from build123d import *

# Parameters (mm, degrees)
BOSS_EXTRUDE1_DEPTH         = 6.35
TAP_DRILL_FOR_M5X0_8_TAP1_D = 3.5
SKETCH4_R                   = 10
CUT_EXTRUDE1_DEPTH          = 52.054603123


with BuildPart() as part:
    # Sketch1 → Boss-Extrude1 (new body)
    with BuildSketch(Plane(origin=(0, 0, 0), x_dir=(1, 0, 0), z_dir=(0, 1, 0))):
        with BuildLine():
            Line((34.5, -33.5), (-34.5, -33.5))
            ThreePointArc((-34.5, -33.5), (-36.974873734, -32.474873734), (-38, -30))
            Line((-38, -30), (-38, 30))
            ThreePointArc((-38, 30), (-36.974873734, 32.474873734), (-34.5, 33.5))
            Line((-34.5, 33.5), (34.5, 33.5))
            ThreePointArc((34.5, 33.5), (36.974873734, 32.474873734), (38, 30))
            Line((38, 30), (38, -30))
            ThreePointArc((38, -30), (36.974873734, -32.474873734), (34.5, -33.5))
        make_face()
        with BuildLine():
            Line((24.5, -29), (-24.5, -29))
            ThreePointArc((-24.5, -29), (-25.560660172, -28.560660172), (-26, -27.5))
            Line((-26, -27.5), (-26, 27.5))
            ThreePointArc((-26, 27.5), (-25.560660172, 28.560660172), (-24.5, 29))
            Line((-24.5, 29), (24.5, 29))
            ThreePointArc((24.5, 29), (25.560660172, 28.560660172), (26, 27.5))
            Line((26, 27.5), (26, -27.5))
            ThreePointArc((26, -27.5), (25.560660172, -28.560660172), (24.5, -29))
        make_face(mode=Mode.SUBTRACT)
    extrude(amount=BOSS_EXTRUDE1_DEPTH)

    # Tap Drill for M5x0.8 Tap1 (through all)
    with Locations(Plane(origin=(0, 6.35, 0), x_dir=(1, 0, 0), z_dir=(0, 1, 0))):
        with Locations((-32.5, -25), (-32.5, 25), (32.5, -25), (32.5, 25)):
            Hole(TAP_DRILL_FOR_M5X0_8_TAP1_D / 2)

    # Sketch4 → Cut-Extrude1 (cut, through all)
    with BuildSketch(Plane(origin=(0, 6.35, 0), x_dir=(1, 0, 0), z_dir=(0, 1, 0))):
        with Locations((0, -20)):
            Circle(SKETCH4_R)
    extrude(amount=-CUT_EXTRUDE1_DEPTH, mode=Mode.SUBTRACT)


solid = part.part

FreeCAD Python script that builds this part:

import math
import FreeCAD as App
import Part
import Sketcher
Q = App.Units.Quantity

doc = App.newDocument("Part")
body = doc.addObject("PartDesign::Body", "Body")

sketch1 = body.newObject("Sketcher::SketchObject", "Sketch")
sketch1.AttachmentSupport = (doc.getObject("XZ_Plane"), [""])
sketch1.MapMode = "FlatFace"
sketch1.addGeometry([
    Part.LineSegment(App.Vector(-34.5, 33.5, 0), App.Vector(34.5, 33.5, 0)),
    Part.ArcOfCircle(Part.Circle(App.Vector(34.5, 30, 0), App.Vector(0, 0, 1), 3.5), math.radians(0), math.radians(90)),
    Part.LineSegment(App.Vector(38, 30, 0), App.Vector(38, -30, 0)),
    Part.ArcOfCircle(Part.Circle(App.Vector(34.5, -30, 0), App.Vector(0, 0, 1), 3.5), math.radians(-90), math.radians(0)),
    Part.LineSegment(App.Vector(34.5, -33.5, 0), App.Vector(-34.5, -33.5, 0)),
    Part.ArcOfCircle(Part.Circle(App.Vector(-34.5, -30, 0), App.Vector(0, 0, 1), 3.5), math.radians(-180), math.radians(-90)),
    Part.LineSegment(App.Vector(-38, -30, 0), App.Vector(-38, 30, 0)),
    Part.ArcOfCircle(Part.Circle(App.Vector(-34.5, 30, 0), App.Vector(0, 0, 1), 3.5), math.radians(90), math.radians(180)),
    Part.LineSegment(App.Vector(24.5, 29, 0), App.Vector(-24.5, 29, 0)),
    Part.ArcOfCircle(Part.Circle(App.Vector(-24.5, 27.5, 0), App.Vector(0, 0, 1), 1.5), math.radians(90), math.radians(180)),
    Part.LineSegment(App.Vector(-26, 27.5, 0), App.Vector(-26, -27.5, 0)),
    Part.ArcOfCircle(Part.Circle(App.Vector(-24.5, -27.5, 0), App.Vector(0, 0, 1), 1.5), math.radians(180), math.radians(270)),
    Part.LineSegment(App.Vector(-24.5, -29, 0), App.Vector(24.5, -29, 0)),
    Part.ArcOfCircle(Part.Circle(App.Vector(24.5, -27.5, 0), App.Vector(0, 0, 1), 1.5), math.radians(-90), math.radians(0)),
    Part.LineSegment(App.Vector(26, -27.5, 0), App.Vector(26, 27.5, 0)),
    Part.ArcOfCircle(Part.Circle(App.Vector(24.5, 27.5, 0), App.Vector(0, 0, 1), 1.5), math.radians(0), math.radians(90)),
], False)
sketch1.addConstraint([
    Sketcher.Constraint("Tangent", 0, 2, 1, 2),
    Sketcher.Constraint("Tangent", 1, 1, 2, 1),
    Sketcher.Constraint("Tangent", 2, 2, 3, 2),
    Sketcher.Constraint("Tangent", 3, 1, 4, 1),
    Sketcher.Constraint("Tangent", 4, 2, 5, 2),
    Sketcher.Constraint("Tangent", 5, 1, 6, 1),
    Sketcher.Constraint("Tangent", 6, 2, 7, 2),
    Sketcher.Constraint("Tangent", 7, 1, 0, 1),
    Sketcher.Constraint("Tangent", 8, 2, 9, 1),
    Sketcher.Constraint("Tangent", 9, 2, 10, 1),
    Sketcher.Constraint("Tangent", 10, 2, 11, 1),
    Sketcher.Constraint("Tangent", 11, 2, 12, 1),
    Sketcher.Constraint("Tangent", 12, 2, 13, 1),
    Sketcher.Constraint("Tangent", 13, 2, 14, 1),
    Sketcher.Constraint("Tangent", 14, 2, 15, 1),
    Sketcher.Constraint("Tangent", 15, 2, 8, 1),
    Sketcher.Constraint("Horizontal", 0),
    Sketcher.Constraint("Vertical", 2),
    Sketcher.Constraint("Horizontal", 4),
    Sketcher.Constraint("Vertical", 6),
    Sketcher.Constraint("Horizontal", 8),
    Sketcher.Constraint("Vertical", 10),
    Sketcher.Constraint("Horizontal", 12),
    Sketcher.Constraint("Vertical", 14),
    Sketcher.Constraint("Equal", 1, 3),
    Sketcher.Constraint("Equal", 3, 5),
    Sketcher.Constraint("Equal", 5, 7),
    Sketcher.Constraint("Equal", 9, 11),
    Sketcher.Constraint("Equal", 11, 13),
    Sketcher.Constraint("Equal", 13, 15),
    Sketcher.Constraint("Symmetric", 1, 3, 5, 3, -1, 1),
    Sketcher.Constraint("Symmetric", 9, 3, 13, 3, -1, 1),
    Sketcher.Constraint("Radius", 1, Q("3.5 mm")),
    Sketcher.Constraint("Radius", 9, Q("1.5 mm")),
    Sketcher.Constraint("DistanceX", 0, 1, 0, 2, Q("69 mm")),
    Sketcher.Constraint("DistanceX", 8, 2, 8, 1, Q("49 mm")),
    Sketcher.Constraint("DistanceY", 2, 2, 2, 1, Q("60 mm")),
    Sketcher.Constraint("DistanceY", 10, 2, 10, 1, Q("55 mm")),
])
pad1 = body.newObject("PartDesign::Pad", "Pad")
pad1.Profile = sketch1
pad1.Length = 6.35
pad1.Reversed = True

sketch2 = body.newObject("Sketcher::SketchObject", "Sketch001")
sketch2.AttachmentSupport = (doc.getObject("XZ_Plane"), [""])
sketch2.MapMode = "FlatFace"
sketch2.AttachmentOffset = App.Placement(App.Vector(0, 0, -6.35), App.Rotation())
sketch2.addGeometry([
    Part.Circle(App.Vector(-32.5, 25, 0), App.Vector(0, 0, 1), 1.8),
    Part.Circle(App.Vector(-32.5, -25, 0), App.Vector(0, 0, 1), 1.8),
    Part.Circle(App.Vector(32.5, 25, 0), App.Vector(0, 0, 1), 1.8),
    Part.Circle(App.Vector(32.5, -25, 0), App.Vector(0, 0, 1), 1.8),
], False)
sketch2.addConstraint([
    Sketcher.Constraint("Equal", 0, 1),
    Sketcher.Constraint("Equal", 1, 2),
    Sketcher.Constraint("Equal", 2, 3),
    Sketcher.Constraint("Symmetric", 1, 3, 2, 3, -1, 1),
    Sketcher.Constraint("Symmetric", 0, 3, 3, 3, -1, 1),
    Sketcher.Constraint("Symmetric", 0, 3, 2, 3, -2),
    Sketcher.Constraint("Diameter", 0, Q("3.5 mm")),
    Sketcher.Constraint("DistanceY", -1, 1, 0, 3, Q("25 mm")),
    Sketcher.Constraint("DistanceX", 0, 3, 2, 3, Q("65 mm")),
])
doc.recompute()
hole = body.newObject("PartDesign::Hole", "Hole")
hole.Profile = sketch2
hole.ThreadType = "None"
hole.Diameter = 3.5
hole.DepthType = "ThroughAll"
hole.Reversed = True

sketch3 = body.newObject("Sketcher::SketchObject", "Sketch002")
sketch3.AttachmentSupport = (doc.getObject("XZ_Plane"), [""])
sketch3.MapMode = "FlatFace"
sketch3.AttachmentOffset = App.Placement(App.Vector(0, 0, -6.35), App.Rotation())
sketch3.addGeometry(Part.Circle(App.Vector(0, 20, 0), App.Vector(0, 0, 1), 10), False)
sketch3.addConstraint([
    Sketcher.Constraint("PointOnObject", 0, 3, -2),
    Sketcher.Constraint("Diameter", 0, Q("20 mm")),
    Sketcher.Constraint("DistanceY", -1, 1, 0, 3, Q("20 mm")),
])
pocket1 = body.newObject("PartDesign::Pocket", "Pocket")
pocket1.Profile = sketch3
pocket1.Type = "ThroughAll"
pocket1.Reversed = True

doc.recompute()
